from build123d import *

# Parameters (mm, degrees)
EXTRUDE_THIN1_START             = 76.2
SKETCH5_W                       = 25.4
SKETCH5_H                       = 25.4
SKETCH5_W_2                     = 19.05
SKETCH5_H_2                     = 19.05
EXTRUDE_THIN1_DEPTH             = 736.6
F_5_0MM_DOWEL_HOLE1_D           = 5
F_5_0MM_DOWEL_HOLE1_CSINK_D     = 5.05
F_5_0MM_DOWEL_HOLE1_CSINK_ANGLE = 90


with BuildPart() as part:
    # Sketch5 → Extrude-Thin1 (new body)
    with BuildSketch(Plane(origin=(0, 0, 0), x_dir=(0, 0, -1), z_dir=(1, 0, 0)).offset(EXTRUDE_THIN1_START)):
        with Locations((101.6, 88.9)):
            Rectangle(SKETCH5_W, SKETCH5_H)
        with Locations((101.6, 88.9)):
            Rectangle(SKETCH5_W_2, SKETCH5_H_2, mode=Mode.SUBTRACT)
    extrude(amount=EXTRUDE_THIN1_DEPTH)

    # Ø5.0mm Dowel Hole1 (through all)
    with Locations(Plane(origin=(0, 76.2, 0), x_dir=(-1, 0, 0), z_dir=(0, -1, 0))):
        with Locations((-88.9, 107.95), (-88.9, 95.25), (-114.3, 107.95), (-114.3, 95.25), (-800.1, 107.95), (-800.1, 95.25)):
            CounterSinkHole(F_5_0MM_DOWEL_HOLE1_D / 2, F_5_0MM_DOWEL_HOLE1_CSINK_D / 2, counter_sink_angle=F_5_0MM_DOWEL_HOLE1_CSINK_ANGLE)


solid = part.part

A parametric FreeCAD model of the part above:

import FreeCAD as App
import Part
import Sketcher
Q = App.Units.Quantity

doc = App.newDocument("Part")
params = doc.addObject("Spreadsheet::Sheet", "Params")
for row, (alias, value) in enumerate([
    ("sketch1_width", "1 in"),
    ("sketch1_width2", "0.75 in"),
    ("pad1_length", "29 in"),
    ("hole_diameter", "5 mm"),
    ("hole_csink_diameter", "5.05 mm"),
], start=1):
    params.set(f"A{row}", alias)
    params.set(f"B{row}", "=" + value)
    params.setAlias(f"B{row}", alias)

body = doc.addObject("PartDesign::Body", "Body")

# Sketch on YZ plane
sketch1 = body.newObject("Sketcher::SketchObject", "Sketch")
sketch1.AttachmentSupport = (doc.getObject("YZ_Plane"), [""])
sketch1.MapMode = "FlatFace"
sketch1.AttachmentOffset = App.Placement(App.Vector(0, 0, 3 * 25.4), App.Rotation())
sketch1.addGeometry([
    Part.LineSegment(App.Vector(102, -89, 0), App.Vector(76, -89, 0)),  # 0
    Part.LineSegment(App.Vector(76, -89, 0), App.Vector(76, -114, 0)),  # 1
    Part.LineSegment(App.Vector(76, -114, 0), App.Vector(102, -114, 0)),  # 2
    Part.LineSegment(App.Vector(102, -114, 0), App.Vector(102, -89, 0)),  # 3
    Part.LineSegment(App.Vector(79, -111, 0), App.Vector(79, -92, 0)),  # 4
    Part.LineSegment(App.Vector(79, -92, 0), App.Vector(98, -92, 0)),  # 5
    Part.LineSegment(App.Vector(98, -92, 0), App.Vector(98, -111, 0)),  # 6
    Part.LineSegment(App.Vector(98, -111, 0), App.Vector(79, -111, 0)),  # 7
], False)
sketch1.addConstraint([
    Sketcher.Constraint("Coincident", 0, 2, 1, 1),
    Sketcher.Constraint("Coincident", 1, 2, 2, 1),
    Sketcher.Constraint("Coincident", 2, 2, 3, 1),
    Sketcher.Constraint("Coincident", 3, 2, 0, 1),
    Sketcher.Constraint("Coincident", 4, 2, 5, 1),
    Sketcher.Constraint("Coincident", 5, 2, 6, 1),
    Sketcher.Constraint("Coincident", 6, 2, 7, 1),
    Sketcher.Constraint("Coincident", 7, 2, 4, 1),
    Sketcher.Constraint("Horizontal", 0),
    Sketcher.Constraint("Vertical", 1),
    Sketcher.Constraint("Horizontal", 2),
    Sketcher.Constraint("Vertical", 3),
    Sketcher.Constraint("Vertical", 4),
    Sketcher.Constraint("Horizontal", 5),
    Sketcher.Constraint("Vertical", 6),
    Sketcher.Constraint("Horizontal", 7),
    Sketcher.Constraint("Equal", 2, 1),
    Sketcher.Constraint("Equal", 7, 4),
    Sketcher.Constraint("DistanceX", 0, 2, 0, 1, Q("1 in")),
    Sketcher.Constraint("DistanceX", -1, 1, 0, 2, Q("3 in")),
    Sketcher.Constraint("DistanceX", 5, 1, 5, 2, Q("0.75 in")),
    Sketcher.Constraint("DistanceY", 0, 2, -1, 1, Q("3.5 in")),
    Sketcher.Constraint("DistanceX", -1, 1, 4, 2, Q("3.125 in")),
    Sketcher.Constraint("DistanceY", 4, 2, -1, 1, Q("3.625 in")),
])
sketch1.setExpression("Constraints[18]", "Params.sketch1_width")
sketch1.setExpression("Constraints[20]", "Params.sketch1_width2")
pad1 = body.newObject("PartDesign::Pad", "Pad")
pad1.Profile = sketch1
pad1.setExpression("Length", "Params.pad1_length")

# Sketch on XZ plane
sketch2 = body.newObject("Sketcher::SketchObject", "Sketch001")
sketch2.AttachmentSupport = (doc.getObject("XZ_Plane"), [""])
sketch2.MapMode = "FlatFace"
sketch2.AttachmentOffset = App.Placement(App.Vector(0, 0, -3 * 25.4), App.Rotation())
sketch2.addGeometry([
    Part.Circle(App.Vector(88.9, -108, 0), App.Vector(0, 0, 1), 2.5),  # 0
    Part.Circle(App.Vector(88.9, -95.2, 0), App.Vector(0, 0, 1), 2.5),  # 1
    Part.Circle(App.Vector(114.3, -108, 0), App.Vector(0, 0, 1), 2.5),  # 2
    Part.Circle(App.Vector(114.3, -95.2, 0), App.Vector(0, 0, 1), 2.5),  # 3
    Part.Circle(App.Vector(800.1, -108, 0), App.Vector(0, 0, 1), 2.5),  # 4
    Part.Circle(App.Vector(800.1, -95.2, 0), App.Vector(0, 0, 1), 2.5),  # 5
], False)
sketch2.addConstraint([
    Sketcher.Constraint("Equal", 0, 1),
    Sketcher.Constraint("Equal", 1, 2),
    Sketcher.Constraint("Equal", 2, 3),
    Sketcher.Constraint("Equal", 3, 4),
    Sketcher.Constraint("Equal", 4, 5),
    Sketcher.Constraint("Horizontal", 0, 3, 2, 3),
    Sketcher.Constraint("Horizontal", 1, 3, 3, 3),
    Sketcher.Constraint("Horizontal", 2, 3, 4, 3),
    Sketcher.Constraint("Horizontal", 3, 3, 5, 3),
    Sketcher.Constraint("Vertical", 0, 3, 1, 3),
    Sketcher.Constraint("Vertical", 2, 3, 3, 3),
    Sketcher.Constraint("Vertical", 4, 3, 5, 3),
    Sketcher.Constraint("DistanceX", 0, 3, 2, 3, Q("1 in")),
    Sketcher.Constraint("DistanceX", 2, 3, 4, 3, Q("27 in")),
    Sketcher.Constraint("DistanceX", -1, 1, 0, 3, Q("3.5 in")),
    Sketcher.Constraint("DistanceY", 0, 3, 1, 3, Q("0.5 in")),
    Sketcher.Constraint("Diameter", 0, Q("5 mm")),
    Sketcher.Constraint("DistanceY", 0, 3, -1, 1, Q("4.25 in")),
])
doc.recompute()
hole = body.newObject("PartDesign::Hole", "Hole")
hole.Profile = sketch2
hole.ThreadType = "None"
hole.setExpression("Diameter", "Params.hole_diameter")
hole.DepthType = "ThroughAll"
hole.HoleCutType = "Countersink"
hole.setExpression("HoleCutDiameter", "Params.hole_csink_diameter")
hole.HoleCutCountersinkAngle = 90

doc.recompute()
